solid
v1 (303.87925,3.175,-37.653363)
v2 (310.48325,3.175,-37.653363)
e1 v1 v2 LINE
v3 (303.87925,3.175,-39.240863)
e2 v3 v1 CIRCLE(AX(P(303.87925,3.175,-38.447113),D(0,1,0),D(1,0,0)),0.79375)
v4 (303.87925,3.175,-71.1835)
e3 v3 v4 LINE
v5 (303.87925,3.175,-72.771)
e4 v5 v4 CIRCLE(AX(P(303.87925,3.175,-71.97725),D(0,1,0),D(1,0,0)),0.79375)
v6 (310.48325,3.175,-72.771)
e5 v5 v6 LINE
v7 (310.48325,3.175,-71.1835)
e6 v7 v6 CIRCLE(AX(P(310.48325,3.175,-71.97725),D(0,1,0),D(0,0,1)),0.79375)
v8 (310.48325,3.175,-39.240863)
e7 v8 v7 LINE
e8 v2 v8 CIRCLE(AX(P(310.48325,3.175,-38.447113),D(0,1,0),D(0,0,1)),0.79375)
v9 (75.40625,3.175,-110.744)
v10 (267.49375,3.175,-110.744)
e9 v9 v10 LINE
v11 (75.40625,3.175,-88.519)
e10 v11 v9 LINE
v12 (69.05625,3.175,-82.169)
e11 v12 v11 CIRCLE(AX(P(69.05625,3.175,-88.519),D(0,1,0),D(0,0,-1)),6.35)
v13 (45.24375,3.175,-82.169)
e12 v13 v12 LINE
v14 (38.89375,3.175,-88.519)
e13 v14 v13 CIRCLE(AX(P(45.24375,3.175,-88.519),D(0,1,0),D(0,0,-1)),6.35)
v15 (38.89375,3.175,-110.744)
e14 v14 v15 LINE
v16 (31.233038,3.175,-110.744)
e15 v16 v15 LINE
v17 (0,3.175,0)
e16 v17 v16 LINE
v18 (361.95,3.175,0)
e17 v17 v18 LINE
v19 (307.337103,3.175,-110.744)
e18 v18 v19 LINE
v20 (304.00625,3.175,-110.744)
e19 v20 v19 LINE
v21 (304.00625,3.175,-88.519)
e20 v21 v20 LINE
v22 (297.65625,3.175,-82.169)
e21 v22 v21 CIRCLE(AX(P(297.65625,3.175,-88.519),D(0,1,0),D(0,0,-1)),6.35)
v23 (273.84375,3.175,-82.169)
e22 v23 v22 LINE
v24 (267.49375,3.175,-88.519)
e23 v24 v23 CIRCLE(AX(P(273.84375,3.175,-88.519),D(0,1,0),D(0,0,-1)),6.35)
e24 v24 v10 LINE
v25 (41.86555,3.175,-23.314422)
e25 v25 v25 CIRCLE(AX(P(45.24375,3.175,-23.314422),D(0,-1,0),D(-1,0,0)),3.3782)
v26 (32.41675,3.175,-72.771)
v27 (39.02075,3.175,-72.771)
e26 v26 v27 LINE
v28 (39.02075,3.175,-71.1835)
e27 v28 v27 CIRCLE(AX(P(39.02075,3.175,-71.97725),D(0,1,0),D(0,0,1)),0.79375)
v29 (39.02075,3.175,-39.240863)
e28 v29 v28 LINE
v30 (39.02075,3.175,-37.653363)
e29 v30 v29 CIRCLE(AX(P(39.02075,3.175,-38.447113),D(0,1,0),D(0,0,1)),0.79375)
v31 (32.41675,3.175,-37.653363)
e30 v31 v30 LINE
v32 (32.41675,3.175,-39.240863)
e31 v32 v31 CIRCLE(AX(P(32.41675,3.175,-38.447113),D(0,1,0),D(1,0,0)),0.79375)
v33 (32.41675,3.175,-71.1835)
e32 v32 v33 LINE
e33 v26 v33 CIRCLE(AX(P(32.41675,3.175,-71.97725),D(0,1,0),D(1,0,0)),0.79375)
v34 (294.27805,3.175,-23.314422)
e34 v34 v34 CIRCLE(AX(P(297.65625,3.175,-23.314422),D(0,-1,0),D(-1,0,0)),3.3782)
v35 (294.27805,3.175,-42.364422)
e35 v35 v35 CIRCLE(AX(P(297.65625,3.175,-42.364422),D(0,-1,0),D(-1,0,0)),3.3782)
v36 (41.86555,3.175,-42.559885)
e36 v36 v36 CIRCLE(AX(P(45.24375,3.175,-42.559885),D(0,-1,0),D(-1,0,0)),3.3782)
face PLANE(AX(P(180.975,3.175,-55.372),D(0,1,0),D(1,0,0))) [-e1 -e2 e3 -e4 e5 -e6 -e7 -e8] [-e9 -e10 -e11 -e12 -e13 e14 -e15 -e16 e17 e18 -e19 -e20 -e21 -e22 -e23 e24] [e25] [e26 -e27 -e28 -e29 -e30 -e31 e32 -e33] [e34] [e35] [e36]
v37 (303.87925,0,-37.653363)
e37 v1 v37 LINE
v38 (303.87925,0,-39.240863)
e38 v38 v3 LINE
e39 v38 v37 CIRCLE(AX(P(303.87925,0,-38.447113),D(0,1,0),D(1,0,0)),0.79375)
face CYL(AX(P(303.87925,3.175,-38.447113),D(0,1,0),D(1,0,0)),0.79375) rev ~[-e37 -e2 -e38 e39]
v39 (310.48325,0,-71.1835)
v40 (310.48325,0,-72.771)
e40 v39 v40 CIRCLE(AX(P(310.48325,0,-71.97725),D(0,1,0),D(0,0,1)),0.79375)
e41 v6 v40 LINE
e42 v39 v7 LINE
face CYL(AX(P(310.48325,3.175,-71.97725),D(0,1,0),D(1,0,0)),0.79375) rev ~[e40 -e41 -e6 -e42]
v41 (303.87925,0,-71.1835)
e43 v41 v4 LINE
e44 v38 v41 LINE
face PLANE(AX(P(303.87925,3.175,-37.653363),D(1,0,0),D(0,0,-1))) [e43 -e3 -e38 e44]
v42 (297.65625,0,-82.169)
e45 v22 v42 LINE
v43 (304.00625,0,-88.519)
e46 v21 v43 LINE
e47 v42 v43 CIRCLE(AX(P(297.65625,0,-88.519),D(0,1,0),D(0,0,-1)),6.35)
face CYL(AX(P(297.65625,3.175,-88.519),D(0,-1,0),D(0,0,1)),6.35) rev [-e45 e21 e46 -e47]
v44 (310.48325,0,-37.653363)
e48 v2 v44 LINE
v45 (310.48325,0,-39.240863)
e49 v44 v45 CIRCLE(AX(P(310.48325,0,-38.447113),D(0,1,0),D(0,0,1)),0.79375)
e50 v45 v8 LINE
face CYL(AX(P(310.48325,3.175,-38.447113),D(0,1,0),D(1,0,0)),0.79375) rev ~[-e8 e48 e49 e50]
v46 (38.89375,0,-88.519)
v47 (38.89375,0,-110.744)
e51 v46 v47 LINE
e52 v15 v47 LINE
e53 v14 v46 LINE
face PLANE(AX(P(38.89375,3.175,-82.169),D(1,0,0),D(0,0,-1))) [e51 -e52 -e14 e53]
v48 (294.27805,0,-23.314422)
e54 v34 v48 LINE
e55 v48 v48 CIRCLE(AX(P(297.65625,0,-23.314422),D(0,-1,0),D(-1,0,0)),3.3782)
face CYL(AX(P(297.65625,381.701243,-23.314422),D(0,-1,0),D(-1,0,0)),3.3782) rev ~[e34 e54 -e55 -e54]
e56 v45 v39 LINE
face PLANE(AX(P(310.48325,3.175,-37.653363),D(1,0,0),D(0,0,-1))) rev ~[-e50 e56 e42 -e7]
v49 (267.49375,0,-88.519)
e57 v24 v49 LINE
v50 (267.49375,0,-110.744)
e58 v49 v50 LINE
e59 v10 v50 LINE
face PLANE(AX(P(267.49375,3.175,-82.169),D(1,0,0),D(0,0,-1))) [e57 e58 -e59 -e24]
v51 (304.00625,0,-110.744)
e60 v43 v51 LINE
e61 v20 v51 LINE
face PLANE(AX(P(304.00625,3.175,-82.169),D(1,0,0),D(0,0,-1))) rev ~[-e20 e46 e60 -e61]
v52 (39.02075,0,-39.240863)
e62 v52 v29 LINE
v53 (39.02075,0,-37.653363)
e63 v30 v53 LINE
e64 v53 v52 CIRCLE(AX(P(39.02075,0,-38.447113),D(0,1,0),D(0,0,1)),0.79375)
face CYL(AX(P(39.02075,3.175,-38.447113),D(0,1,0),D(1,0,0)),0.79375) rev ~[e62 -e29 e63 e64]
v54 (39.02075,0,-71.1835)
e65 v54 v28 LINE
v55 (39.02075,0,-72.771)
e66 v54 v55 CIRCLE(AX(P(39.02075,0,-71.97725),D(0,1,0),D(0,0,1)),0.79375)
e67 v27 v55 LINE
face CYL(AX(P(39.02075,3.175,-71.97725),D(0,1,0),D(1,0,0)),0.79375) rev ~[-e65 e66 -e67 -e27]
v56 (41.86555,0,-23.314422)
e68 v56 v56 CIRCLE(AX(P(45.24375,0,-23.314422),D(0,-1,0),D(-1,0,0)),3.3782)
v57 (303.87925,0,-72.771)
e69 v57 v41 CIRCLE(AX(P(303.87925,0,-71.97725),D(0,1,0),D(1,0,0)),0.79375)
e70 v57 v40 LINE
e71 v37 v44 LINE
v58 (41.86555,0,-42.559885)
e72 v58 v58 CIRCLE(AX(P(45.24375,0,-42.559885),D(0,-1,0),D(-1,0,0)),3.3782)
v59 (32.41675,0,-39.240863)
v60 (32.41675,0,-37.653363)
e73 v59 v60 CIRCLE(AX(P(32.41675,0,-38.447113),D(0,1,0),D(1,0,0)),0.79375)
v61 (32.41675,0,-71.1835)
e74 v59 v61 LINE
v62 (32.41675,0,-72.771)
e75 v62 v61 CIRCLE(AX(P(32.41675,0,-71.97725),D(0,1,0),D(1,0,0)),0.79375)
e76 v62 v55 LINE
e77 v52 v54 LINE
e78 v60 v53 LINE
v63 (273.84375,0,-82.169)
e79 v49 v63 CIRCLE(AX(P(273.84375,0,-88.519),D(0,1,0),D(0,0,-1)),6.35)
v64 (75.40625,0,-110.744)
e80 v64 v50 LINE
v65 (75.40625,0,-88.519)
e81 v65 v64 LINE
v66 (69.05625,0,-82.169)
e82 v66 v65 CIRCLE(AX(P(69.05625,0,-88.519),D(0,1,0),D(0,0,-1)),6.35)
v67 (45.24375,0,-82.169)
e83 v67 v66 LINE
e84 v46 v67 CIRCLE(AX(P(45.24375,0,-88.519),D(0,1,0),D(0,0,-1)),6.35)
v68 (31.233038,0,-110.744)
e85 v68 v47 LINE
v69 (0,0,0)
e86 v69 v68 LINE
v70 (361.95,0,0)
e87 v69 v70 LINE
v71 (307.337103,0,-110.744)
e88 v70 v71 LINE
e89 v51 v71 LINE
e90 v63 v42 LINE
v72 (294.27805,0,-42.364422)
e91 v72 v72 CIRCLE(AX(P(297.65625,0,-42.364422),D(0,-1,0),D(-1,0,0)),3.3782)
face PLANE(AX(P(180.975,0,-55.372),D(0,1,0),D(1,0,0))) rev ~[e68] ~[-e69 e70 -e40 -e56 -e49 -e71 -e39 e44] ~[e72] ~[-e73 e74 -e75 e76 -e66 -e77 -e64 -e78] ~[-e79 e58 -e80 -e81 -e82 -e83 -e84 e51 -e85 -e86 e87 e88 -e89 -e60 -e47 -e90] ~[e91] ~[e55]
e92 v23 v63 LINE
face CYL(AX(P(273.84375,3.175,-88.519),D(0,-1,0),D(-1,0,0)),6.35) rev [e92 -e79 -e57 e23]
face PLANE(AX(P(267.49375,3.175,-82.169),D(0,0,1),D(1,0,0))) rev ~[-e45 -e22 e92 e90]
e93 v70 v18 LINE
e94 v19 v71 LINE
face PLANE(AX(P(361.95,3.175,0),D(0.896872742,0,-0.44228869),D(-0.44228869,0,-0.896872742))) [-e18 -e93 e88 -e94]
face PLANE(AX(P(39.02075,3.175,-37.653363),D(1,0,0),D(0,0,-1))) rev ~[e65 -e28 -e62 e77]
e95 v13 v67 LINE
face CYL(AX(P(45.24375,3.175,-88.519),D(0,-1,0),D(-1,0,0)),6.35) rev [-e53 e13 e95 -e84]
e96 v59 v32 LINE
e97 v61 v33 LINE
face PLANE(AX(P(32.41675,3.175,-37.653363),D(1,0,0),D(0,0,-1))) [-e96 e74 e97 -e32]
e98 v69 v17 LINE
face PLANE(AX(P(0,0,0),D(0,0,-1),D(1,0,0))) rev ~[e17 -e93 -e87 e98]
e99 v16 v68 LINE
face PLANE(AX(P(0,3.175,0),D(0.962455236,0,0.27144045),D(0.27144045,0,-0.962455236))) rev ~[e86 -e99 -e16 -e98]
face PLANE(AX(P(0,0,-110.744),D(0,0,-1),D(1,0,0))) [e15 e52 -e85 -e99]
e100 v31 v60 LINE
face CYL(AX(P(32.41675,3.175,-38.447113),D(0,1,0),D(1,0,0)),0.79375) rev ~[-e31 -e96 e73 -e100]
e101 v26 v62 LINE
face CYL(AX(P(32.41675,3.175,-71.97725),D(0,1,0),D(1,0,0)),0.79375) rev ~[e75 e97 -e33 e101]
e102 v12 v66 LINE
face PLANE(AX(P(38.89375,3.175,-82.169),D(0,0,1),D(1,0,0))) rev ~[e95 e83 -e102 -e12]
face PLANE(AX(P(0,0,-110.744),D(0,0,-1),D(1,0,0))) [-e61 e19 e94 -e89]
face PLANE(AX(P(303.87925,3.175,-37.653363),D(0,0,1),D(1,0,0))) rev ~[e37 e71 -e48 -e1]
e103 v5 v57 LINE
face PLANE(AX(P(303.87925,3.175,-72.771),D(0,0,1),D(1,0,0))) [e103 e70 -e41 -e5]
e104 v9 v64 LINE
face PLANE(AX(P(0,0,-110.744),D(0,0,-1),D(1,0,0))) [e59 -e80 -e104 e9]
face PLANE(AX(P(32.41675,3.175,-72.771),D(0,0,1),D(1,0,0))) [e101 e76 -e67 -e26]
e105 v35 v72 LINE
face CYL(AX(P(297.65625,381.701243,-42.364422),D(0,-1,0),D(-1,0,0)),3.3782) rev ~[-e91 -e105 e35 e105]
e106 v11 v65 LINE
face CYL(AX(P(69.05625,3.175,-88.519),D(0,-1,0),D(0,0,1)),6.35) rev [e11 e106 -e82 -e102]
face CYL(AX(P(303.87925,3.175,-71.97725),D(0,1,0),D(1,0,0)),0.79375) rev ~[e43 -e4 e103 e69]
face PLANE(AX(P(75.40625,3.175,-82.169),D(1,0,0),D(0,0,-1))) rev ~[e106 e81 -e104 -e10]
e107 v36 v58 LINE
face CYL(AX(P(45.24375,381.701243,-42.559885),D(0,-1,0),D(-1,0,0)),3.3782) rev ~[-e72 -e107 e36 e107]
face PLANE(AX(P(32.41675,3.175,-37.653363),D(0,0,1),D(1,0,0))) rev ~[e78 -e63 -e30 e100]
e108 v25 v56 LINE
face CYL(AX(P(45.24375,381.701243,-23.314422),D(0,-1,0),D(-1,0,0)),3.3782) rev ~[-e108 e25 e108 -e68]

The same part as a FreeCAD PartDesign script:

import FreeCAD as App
import Part
import Sketcher

V = App.Vector
Q = App.Units.Quantity


def edges_at(feature, points):
    """Names of the edges that pass closest to the given points."""
    edges = feature.Shape.Edges
    near = lambda p: min(range(len(edges)), key=lambda i: edges[i].distToShape(Part.Vertex(*p))[0])
    return sorted({f"Edge{near(p) + 1}" for p in points})


def add_polygon(sketch, points):
    """Adds a closed chain of lines whose ends are joined by coincident constraints."""
    first, n = sketch.GeometryCount, len(points)
    for a, b in zip(points, points[1:] + points[:1]):
        sketch.addGeometry(Part.LineSegment(App.Vector(*a, 0), App.Vector(*b, 0)), False)
    for i in range(n):
        sketch.addConstraint(Sketcher.Constraint("Coincident", first + i, 2, first + (i + 1) % n, 1))

doc = App.newDocument("Part")
body = doc.addObject("PartDesign::Body", "Body")

# Sketch on XZ plane
sketch1 = body.newObject("Sketcher::SketchObject", "Sketch")
sketch1.AttachmentSupport = (doc.getObject("XZ_Plane"), [""])
sketch1.MapMode = "FlatFace"
add_polygon(sketch1, [(0, -111), (0, 0), (362, 0), (362, -111)])  # lines 0-3
sketch1.addConstraint(Sketcher.Constraint("Vertical", 0))
sketch1.addConstraint(Sketcher.Constraint("Horizontal", 1))
sketch1.addConstraint(Sketcher.Constraint("Vertical", 2))
sketch1.addConstraint(Sketcher.Constraint("Horizontal", 3))
sketch1.addConstraint(Sketcher.Constraint("Coincident", 0, 2, -1, 1))
sketch1.addConstraint(Sketcher.Constraint("DistanceX", 1, 1, 1, 2, Q("14.25 in")))
sketch1.addConstraint(Sketcher.Constraint("DistanceY", 0, 1, 0, 2, Q("4.36 in")))
pad1 = body.newObject("PartDesign::Pad", "Pad")
pad1.Profile = sketch1
pad1.Length = Q("0.125 in")
pad1.Reversed = True

# Sketch on XZ plane
sketch2 = body.newObject("Sketcher::SketchObject", "Sketch001")
sketch2.AttachmentSupport = (doc.getObject("XZ_Plane"), [""])
sketch2.MapMode = "FlatFace"
sketch2.AttachmentOffset = App.Placement(V(0, 0, -0.125 * 25.4), App.Rotation())
add_polygon(sketch2, [(0, 0), (31, -111), (0, -111)])  # lines 0-2
add_polygon(sketch2, [(307, -111), (362, 0), (362, -111)])  # lines 3-5
sketch2.addConstraint(Sketcher.Constraint("Horizontal", 1))
sketch2.addConstraint(Sketcher.Constraint("Vertical", 2))
sketch2.addConstraint(Sketcher.Constraint("Vertical", 4))
sketch2.addConstraint(Sketcher.Constraint("Horizontal", 5))
sketch2.addConstraint(Sketcher.Constraint("Coincident", 2, 2, -1, 1))
sketch2.addConstraint(Sketcher.Constraint("PointOnObject", 3, 2, -1))
sketch2.addConstraint(Sketcher.Constraint("Horizontal", 1, 2, 4, 2))
sketch2.addConstraint(Sketcher.Constraint("DistanceY", 2, 1, 2, 2, Q("4.36 in")))
sketch2.addConstraint(Sketcher.Constraint("DistanceX", -1, 1, 3, 2, Q("14.25 in")))
sketch2.addConstraint(Sketcher.Constraint("Angle", 0, Q("-74.25 deg")))
sketch2.addConstraint(Sketcher.Constraint("Angle", 3, Q("63.75 deg")))
pocket1 = body.newObject("PartDesign::Pocket", "Pocket")
pocket1.Profile = sketch2
pocket1.Type = "ThroughAll"
pocket1.Reversed = True

# Sketch on XZ plane
sketch3 = body.newObject("Sketcher::SketchObject", "Sketch002")
sketch3.AttachmentSupport = (doc.getObject("XZ_Plane"), [""])
sketch3.MapMode = "FlatFace"
sketch3.AttachmentOffset = App.Placement(V(0, 0, -0.125 * 25.4), App.Rotation())
add_polygon(sketch3, [(39, -111), (39, -82), (75, -82), (75, -111)])  # lines 0-3
add_polygon(sketch3, [(267, -111), (267, -82), (304, -82), (304, -111)])  # lines 4-7
sketch3.addConstraint(Sketcher.Constraint("Vertical", 0))
sketch3.addConstraint(Sketcher.Constraint("Horizontal", 1))
sketch3.addConstraint(Sketcher.Constraint("Vertical", 2))
sketch3.addConstraint(Sketcher.Constraint("Horizontal", 3))
sketch3.addConstraint(Sketcher.Constraint("Vertical", 4))
sketch3.addConstraint(Sketcher.Constraint("Horizontal", 5))
sketch3.addConstraint(Sketcher.Constraint("Vertical", 6))
sketch3.addConstraint(Sketcher.Constraint("Horizontal", 7))
sketch3.addConstraint(Sketcher.Constraint("Horizontal", 1, 2, 4, 2))
sketch3.addConstraint(Sketcher.Constraint("Horizontal", 3, 2, 6, 2))
sketch3.addConstraint(Sketcher.Constraint("Equal", 3, 5))
sketch3.addConstraint(Sketcher.Constraint("DistanceX", 0, 2, 4, 2, Q("9 in")))
sketch3.addConstraint(Sketcher.Constraint("DistanceX", 1, 1, 1, 2, Q("1.4375 in")))
sketch3.addConstraint(Sketcher.Constraint("DistanceY", 0, 1, 0, 2, Q("1.125 in")))
sketch3.addConstraint(Sketcher.Constraint("DistanceY", 2, 2, -1, 1, Q("4.36 in")))
sketch3.addConstraint(Sketcher.Constraint("DistanceX", -1, 1, 0, 2, Q("1.53125 in")))
pocket2 = body.newObject("PartDesign::Pocket", "Pocket001")
pocket2.Profile = sketch3
pocket2.Type = "ThroughAll"
pocket2.Reversed = True
doc.recompute()

fillet = body.newObject("PartDesign::Fillet", "Fillet")
fillet.Base = (pocket2, edges_at(pocket2, [
    (75.406, 1.587, -82.169),
    (38.894, 1.587, -82.169),
    (304.006, 1.587, -82.169),
    (267.494, 1.587, -82.169),
]))
fillet.Radius = Q("0.25 in")

# Sketch on XZ plane
sketch4 = body.newObject("Sketcher::SketchObject", "Sketch003")
sketch4.AttachmentSupport = (doc.getObject("XZ_Plane"), [""])
sketch4.MapMode = "FlatFace"
sketch4.AttachmentOffset = App.Placement(V(0, 0, -0.125 * 25.4), App.Rotation())
sketch4.addGeometry(Part.Circle(V(297.7, -42.4, 0), V(0, 0, 1), 3.4), False)
sketch4.addGeometry(Part.Circle(V(297.7, -23.3, 0), V(0, 0, 1), 3.4), False)
sketch4.addGeometry(Part.Circle(V(45.2, -23.3, 0), V(0, 0, 1), 3.4), False)
sketch4.addGeometry(Part.Circle(V(45.2, -42.6, 0), V(0, 0, 1), 3.4), False)
sketch4.addConstraint(Sketcher.Constraint("Equal", 0, 1))
sketch4.addConstraint(Sketcher.Constraint("Equal", 1, 2))
sketch4.addConstraint(Sketcher.Constraint("Equal", 2, 3))
sketch4.addConstraint(Sketcher.Constraint("Horizontal", 1, 3, 2, 3))
sketch4.addConstraint(Sketcher.Constraint("Vertical", 0, 3, 1, 3))
sketch4.addConstraint(Sketcher.Constraint("Vertical", 2, 3, 3, 3))
sketch4.addConstraint(Sketcher.Constraint("Diameter", 0, Q("0.266 in")))
sketch4.addConstraint(Sketcher.Constraint("DistanceY", 0, 3, 1, 3, Q("0.75 in")))
sketch4.addConstraint(Sketcher.Constraint("DistanceX", -1, 1, 0, 3, Q("11.71875 in")))
sketch4.addConstraint(Sketcher.Constraint("DistanceX", -1, 1, 2, 3, Q("1.78125 in")))
sketch4.addConstraint(Sketcher.Constraint("DistanceY", 0, 3, -1, 1, 42.364422))
sketch4.addConstraint(Sketcher.Constraint("DistanceY", 3, 3, -1, 1, 42.559885))
doc.recompute()
hole = body.newObject("PartDesign::Hole", "Hole")
hole.Profile = sketch4
hole.ThreadType = "None"
hole.Diameter = Q("0.266 in")
hole.DepthType = "ThroughAll"
hole.Reversed = True

# Sketch on XZ plane
sketch5 = body.newObject("Sketcher::SketchObject", "Sketch004")
sketch5.AttachmentSupport = (doc.getObject("XZ_Plane"), [""])
sketch5.MapMode = "FlatFace"
sketch5.AttachmentOffset = App.Placement(V(0, 0, -0.125 * 25.4), App.Rotation())
add_polygon(sketch5, [(304, -73), (304, -38), (310, -38), (310, -73)])  # lines 0-3
add_polygon(sketch5, [(32, -73), (32, -38), (39, -38), (39, -73)])  # lines 4-7
sketch5.addConstraint(Sketcher.Constraint("Vertical", 0))
sketch5.addConstraint(Sketcher.Constraint("Horizontal", 1))
sketch5.addConstraint(Sketcher.Constraint("Vertical", 2))
sketch5.addConstraint(Sketcher.Constraint("Horizontal", 3))
sketch5.addConstraint(Sketcher.Constraint("Vertical", 4))
sketch5.addConstraint(Sketcher.Constraint("Horizontal", 5))
sketch5.addConstraint(Sketcher.Constraint("Vertical", 6))
sketch5.addConstraint(Sketcher.Constraint("Horizontal", 7))
sketch5.addConstraint(Sketcher.Constraint("Horizontal", 1, 2, 4, 2))
sketch5.addConstraint(Sketcher.Constraint("Horizontal", 3, 2, 6, 2))
sketch5.addConstraint(Sketcher.Constraint("Equal", 3, 5))
sketch5.addConstraint(Sketcher.Constraint("DistanceX", 1, 1, 1, 2, Q("0.26 in")))
sketch5.addConstraint(Sketcher.Constraint("DistanceY", 2, 2, -1, 1, Q("2.865 in")))
sketch5.addConstraint(Sketcher.Constraint("DistanceX", 4, 2, 0, 2, Q("10.6875 in")))
sketch5.addConstraint(Sketcher.Constraint("DistanceY", 0, 1, 0, 2, 35.117637))
sketch5.addConstraint(Sketcher.Constraint("DistanceX", -1, 1, 0, 2, 303.87925))
pocket3 = body.newObject("PartDesign::Pocket", "Pocket002")
pocket3.Profile = sketch5
pocket3.Type = "ThroughAll"
pocket3.Reversed = True

# Sketch on XZ plane
sketch6 = body.newObject("Sketcher::SketchObject", "Sketch005")
sketch6.AttachmentSupport = (doc.getObject("XZ_Plane"), [""])
sketch6.MapMode = "FlatFace"
sketch6.AttachmentOffset = App.Placement(V(0, 0, -0.125 * 25.4), App.Rotation())
sketch6.addGeometry(Part.Circle(V(39, -38.4, 0), V(0, 0, 1), 0.8), False)
sketch6.addGeometry(Part.Circle(V(39, -72, 0), V(0, 0, 1), 0.8), False)
sketch6.addGeometry(Part.Circle(V(32.4, -72, 0), V(0, 0, 1), 0.8), False)
sketch6.addGeometry(Part.Circle(V(32.4, -38.4, 0), V(0, 0, 1), 0.8), False)
sketch6.addGeometry(Part.Circle(V(303.9, -72, 0), V(0, 0, 1), 0.8), False)
sketch6.addGeometry(Part.Circle(V(310.5, -72, 0), V(0, 0, 1), 0.8), False)
sketch6.addGeometry(Part.Circle(V(310.5, -38.4, 0), V(0, 0, 1), 0.8), False)
sketch6.addGeometry(Part.Circle(V(303.9, -38.4, 0), V(0, 0, 1), 0.8), False)
sketch6.addConstraint(Sketcher.Constraint("Equal", 0, 1))
sketch6.addConstraint(Sketcher.Constraint("Equal", 1, 2))
sketch6.addConstraint(Sketcher.Constraint("Equal", 2, 3))
sketch6.addConstraint(Sketcher.Constraint("Equal", 3, 4))
sketch6.addConstraint(Sketcher.Constraint("Equal", 4, 5))
sketch6.addConstraint(Sketcher.Constraint("Equal", 5, 6))
sketch6.addConstraint(Sketcher.Constraint("Equal", 6, 7))
sketch6.addConstraint(Sketcher.Constraint("Horizontal", 1, 3, 2, 3))
sketch6.addConstraint(Sketcher.Constraint("Horizontal", 0, 3, 3, 3))
sketch6.addConstraint(Sketcher.Constraint("Horizontal", 2, 3, 4, 3))
sketch6.addConstraint(Sketcher.Constraint("Horizontal", 4, 3, 5, 3))
sketch6.addConstraint(Sketcher.Constraint("Horizontal", 3, 3, 6, 3))
sketch6.addConstraint(Sketcher.Constraint("Horizontal", 6, 3, 7, 3))
sketch6.addConstraint(Sketcher.Constraint("Vertical", 0, 3, 1, 3))
sketch6.addConstraint(Sketcher.Constraint("Vertical", 2, 3, 3, 3))
sketch6.addConstraint(Sketcher.Constraint("Vertical", 5, 3, 6, 3))
sketch6.addConstraint(Sketcher.Constraint("Vertical", 4, 3, 7, 3))
sketch6.addConstraint(Sketcher.Constraint("Diameter", 0, Q("0.0625 in")))
sketch6.addConstraint(Sketcher.Constraint("DistanceX", 2, 3, 1, 3, Q("0.26 in")))
sketch6.addConstraint(Sketcher.Constraint("DistanceX", 4, 3, 5, 3, Q("0.26 in")))
sketch6.addConstraint(Sketcher.Constraint("DistanceX", 2, 3, 4, 3, Q("10.6875 in")))
sketch6.addConstraint(Sketcher.Constraint("DistanceX", -1, 1, 0, 3, 39.02075))
sketch6.addConstraint(Sketcher.Constraint("DistanceY", 1, 3, -1, 1, 71.97725))
sketch6.addConstraint(Sketcher.Constraint("DistanceY", 0, 3, -1, 1, 38.447113))
pocket4 = body.newObject("PartDesign::Pocket", "Pocket003")
pocket4.Profile = sketch6
pocket4.Type = "ThroughAll"
pocket4.Reversed = True

doc.recompute()
